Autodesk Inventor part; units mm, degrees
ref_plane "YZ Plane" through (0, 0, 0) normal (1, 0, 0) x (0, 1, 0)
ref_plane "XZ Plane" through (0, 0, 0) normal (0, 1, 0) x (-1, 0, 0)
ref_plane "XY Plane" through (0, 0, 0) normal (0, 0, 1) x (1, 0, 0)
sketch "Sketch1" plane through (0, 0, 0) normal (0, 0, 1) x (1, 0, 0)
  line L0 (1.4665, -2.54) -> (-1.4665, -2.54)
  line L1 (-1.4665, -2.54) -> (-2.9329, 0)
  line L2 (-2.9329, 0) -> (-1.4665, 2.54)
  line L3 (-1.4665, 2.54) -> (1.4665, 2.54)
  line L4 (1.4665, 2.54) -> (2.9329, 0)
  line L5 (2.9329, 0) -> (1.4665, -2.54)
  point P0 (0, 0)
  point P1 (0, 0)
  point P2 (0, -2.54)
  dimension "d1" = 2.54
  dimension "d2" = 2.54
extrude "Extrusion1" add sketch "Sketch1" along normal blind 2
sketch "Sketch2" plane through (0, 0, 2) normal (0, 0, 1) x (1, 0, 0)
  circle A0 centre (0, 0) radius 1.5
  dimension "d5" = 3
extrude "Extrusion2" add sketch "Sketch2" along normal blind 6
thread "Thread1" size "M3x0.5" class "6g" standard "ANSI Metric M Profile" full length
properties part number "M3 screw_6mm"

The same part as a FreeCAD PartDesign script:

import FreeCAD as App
import Part
import Sketcher
from FreeCAD import Vector
Q = App.Units.Quantity


def add_polygon(sketch, points):
    """Adds a closed chain of lines whose ends are joined by coincident constraints."""
    first, n = sketch.GeometryCount, len(points)
    for a, b in zip(points, points[1:] + points[:1]):
        sketch.addGeometry(Part.LineSegment(App.Vector(*a, 0), App.Vector(*b, 0)), False)
    for i in range(n):
        sketch.addConstraint(Sketcher.Constraint("Coincident", first + i, 2, first + (i + 1) % n, 1))

doc = App.newDocument("Part")
body = doc.addObject("PartDesign::Body", "Body")

# Sketch on XY plane
sketch1 = body.newObject("Sketcher::SketchObject", "Sketch")
sketch1.AttachmentSupport = (doc.getObject("XY_Plane"), [""])
sketch1.MapMode = "FlatFace"
add_polygon(sketch1, [(-1.5, -2.5), (1.5, -2.5), (2.9, 0), (1.5, 2.5), (-1.5, 2.5), (-2.9, 0)])  # lines 0-5
sketch1.addConstraint([
    Sketcher.Constraint("Horizontal", 0),
    Sketcher.Constraint("Horizontal", 3),
    Sketcher.Constraint("Symmetric", 0, 2, 3, 2, -1, 1),
    Sketcher.Constraint("Symmetric", 1, 2, 4, 2, -1, 1),
    Sketcher.Constraint("PointOnObject", 1, 2, -1),
    Sketcher.Constraint("Parallel", 2, 5),
    Sketcher.Constraint("Vertical", 0, 2, 2, 2),
    Sketcher.Constraint("DistanceY", 0, 2, -1, 1, Q("2.54 mm")),
    Sketcher.Constraint("Angle", 1, Q("60.0012 deg")),
    Sketcher.Constraint("DistanceX", 0, 1, 0, 2, Q("2.933 mm")),
])
pad1 = body.newObject("PartDesign::Pad", "Pad")
pad1.Profile = sketch1
pad1.Length = 2

# Sketch on XY plane
sketch2 = body.newObject("Sketcher::SketchObject", "Sketch001")
sketch2.AttachmentSupport = (doc.getObject("XY_Plane"), [""])
sketch2.MapMode = "FlatFace"
sketch2.AttachmentOffset = App.Placement(Vector(0, 0, 2), App.Rotation())
sketch2.addGeometry(Part.Circle(Vector(0, 0, 0), Vector(0, 0, 1), 1.5), False)
sketch2.addConstraint([
    Sketcher.Constraint("Coincident", 0, 3, -1, 1),
    Sketcher.Constraint("Diameter", 0, Q("3 mm")),
])
pad2 = body.newObject("PartDesign::Pad", "Pad001")
pad2.Profile = sketch2
pad2.Length = 6

doc.recompute()
